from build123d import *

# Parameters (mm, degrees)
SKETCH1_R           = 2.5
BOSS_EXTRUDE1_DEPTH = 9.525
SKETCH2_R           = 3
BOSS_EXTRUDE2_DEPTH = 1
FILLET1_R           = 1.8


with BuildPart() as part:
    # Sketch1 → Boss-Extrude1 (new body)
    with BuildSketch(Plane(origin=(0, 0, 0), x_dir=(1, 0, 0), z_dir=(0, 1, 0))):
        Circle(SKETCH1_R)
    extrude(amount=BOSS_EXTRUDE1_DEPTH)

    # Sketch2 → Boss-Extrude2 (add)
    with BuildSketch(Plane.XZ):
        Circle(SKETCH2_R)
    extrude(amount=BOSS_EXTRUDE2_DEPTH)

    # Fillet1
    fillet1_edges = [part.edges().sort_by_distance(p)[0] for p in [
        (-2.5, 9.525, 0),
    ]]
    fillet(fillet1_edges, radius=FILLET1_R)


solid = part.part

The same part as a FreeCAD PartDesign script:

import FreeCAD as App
import Part
import Sketcher
Q = App.Units.Quantity


def edges_at(feature, points):
    """Names of the edges that pass closest to the given points."""
    edges = feature.Shape.Edges
    near = lambda p: min(range(len(edges)), key=lambda i: edges[i].distToShape(Part.Vertex(*p))[0])
    return sorted({f"Edge{near(p) + 1}" for p in points})

doc = App.newDocument("Part")
body = doc.addObject("PartDesign::Body", "Body")

# Sketch on XZ plane
sketch1 = body.newObject("Sketcher::SketchObject", "Sketch")
sketch1.AttachmentSupport = (doc.getObject("XZ_Plane"), [""])
sketch1.MapMode = "FlatFace"
sketch1.addGeometry(Part.Circle(App.Vector(0, 0, 0), App.Vector(0, 0, 1), 2.5), False)
sketch1.addConstraint(Sketcher.Constraint("Coincident", 0, 3, -1, 1))
sketch1.addConstraint(Sketcher.Constraint("Diameter", 0, Q("5 mm")))
pad1 = body.newObject("PartDesign::Pad", "Pad")
pad1.Profile = sketch1
pad1.Length = 9.525
pad1.Reversed = True

# Sketch on XZ plane
sketch2 = body.newObject("Sketcher::SketchObject", "Sketch001")
sketch2.AttachmentSupport = (doc.getObject("XZ_Plane"), [""])
sketch2.MapMode = "FlatFace"
sketch2.addGeometry(Part.Circle(App.Vector(0, 0, 0), App.Vector(0, 0, 1), 3), False)
sketch2.addConstraint(Sketcher.Constraint("Coincident", 0, 3, -1, 1))
sketch2.addConstraint(Sketcher.Constraint("Diameter", 0, Q("6 mm")))
pad2 = body.newObject("PartDesign::Pad", "Pad001")
pad2.Profile = sketch2
pad2.Length = 1
doc.recompute()

fillet = body.newObject("PartDesign::Fillet", "Fillet")
fillet.Base = (pad2, edges_at(pad2, [(-2.5, 9.525, 0)]))
fillet.Radius = 1.8

doc.recompute()
